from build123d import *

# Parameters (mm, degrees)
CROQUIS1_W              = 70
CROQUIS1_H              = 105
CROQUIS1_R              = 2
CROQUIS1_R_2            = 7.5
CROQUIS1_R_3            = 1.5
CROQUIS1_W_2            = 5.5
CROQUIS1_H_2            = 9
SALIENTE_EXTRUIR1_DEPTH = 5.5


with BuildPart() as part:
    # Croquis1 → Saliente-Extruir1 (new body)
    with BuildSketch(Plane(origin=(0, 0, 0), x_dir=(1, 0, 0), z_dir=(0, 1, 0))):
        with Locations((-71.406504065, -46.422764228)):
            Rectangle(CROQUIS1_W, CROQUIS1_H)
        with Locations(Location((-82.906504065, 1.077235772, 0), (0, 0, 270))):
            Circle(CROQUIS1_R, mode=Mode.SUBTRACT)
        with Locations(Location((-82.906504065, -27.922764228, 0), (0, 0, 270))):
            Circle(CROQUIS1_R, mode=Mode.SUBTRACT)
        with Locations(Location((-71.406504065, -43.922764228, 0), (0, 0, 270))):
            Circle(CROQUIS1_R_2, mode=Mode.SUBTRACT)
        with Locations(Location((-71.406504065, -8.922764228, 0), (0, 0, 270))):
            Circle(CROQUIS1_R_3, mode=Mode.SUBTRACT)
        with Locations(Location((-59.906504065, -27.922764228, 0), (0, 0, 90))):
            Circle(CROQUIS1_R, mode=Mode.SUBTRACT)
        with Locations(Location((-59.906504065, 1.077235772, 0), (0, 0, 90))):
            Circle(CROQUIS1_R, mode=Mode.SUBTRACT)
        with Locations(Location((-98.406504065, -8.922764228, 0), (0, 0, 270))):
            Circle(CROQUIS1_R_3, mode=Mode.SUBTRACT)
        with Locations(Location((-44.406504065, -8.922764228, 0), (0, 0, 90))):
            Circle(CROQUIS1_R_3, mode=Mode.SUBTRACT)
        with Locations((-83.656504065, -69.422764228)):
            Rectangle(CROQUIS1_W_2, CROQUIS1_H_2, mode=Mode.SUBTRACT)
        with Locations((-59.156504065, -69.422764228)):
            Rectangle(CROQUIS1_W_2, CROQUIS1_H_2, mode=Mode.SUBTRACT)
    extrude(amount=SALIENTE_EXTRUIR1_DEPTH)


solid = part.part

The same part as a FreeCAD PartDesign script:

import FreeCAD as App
import Part
import Sketcher
from FreeCAD import Vector
Q = App.Units.Quantity


def add_polygon(sketch, points):
    """Adds a closed chain of lines whose ends are joined by coincident constraints."""
    first, n = sketch.GeometryCount, len(points)
    for a, b in zip(points, points[1:] + points[:1]):
        sketch.addGeometry(Part.LineSegment(App.Vector(*a, 0), App.Vector(*b, 0)), False)
    for i in range(n):
        sketch.addConstraint(Sketcher.Constraint("Coincident", first + i, 2, first + (i + 1) % n, 1))

doc = App.newDocument("Part")
body = doc.addObject("PartDesign::Body", "Body")

# Sketch on XZ plane
sketch1 = doc.addObject("Sketcher::SketchObject", "Sketch")
body.addObject(sketch1)
sketch1.AttachmentSupport = (doc.XZ_Plane, [""])
sketch1.MapMode = "FlatFace"
add_polygon(sketch1, [(-106.4, -6.1), (-106.4, 98.9), (-36.4, 98.9), (-36.4, -6.1)])  # lines 0-3
add_polygon(sketch1, [(-80.9, 73.9), (-86.4, 73.9), (-86.4, 64.9), (-80.9, 64.9)])  # lines 4-7
add_polygon(sketch1, [(-56.4, 73.9), (-61.9, 73.9), (-61.9, 64.9), (-56.4, 64.9)])  # lines 8-11
sketch1.addGeometry(Part.Circle(Vector(-71.4, 43.9, 0), Vector(0, 0, 1), 7.5), False)  # 12
sketch1.addGeometry(Part.Circle(Vector(-82.9, 27.9, 0), Vector(0, 0, 1), 2), False)  # 13
sketch1.addGeometry(Part.Circle(Vector(-98.4, 8.9, 0), Vector(0, 0, 1), 1.5), False)  # 14
sketch1.addGeometry(Part.Circle(Vector(-82.9, -1.1, 0), Vector(0, 0, 1), 2), False)  # 15
sketch1.addGeometry(Part.Circle(Vector(-59.9, 27.9, 0), Vector(0, 0, 1), 2), False)  # 16
sketch1.addGeometry(Part.Circle(Vector(-71.4, 8.9, 0), Vector(0, 0, 1), 1.5), False)  # 17
sketch1.addGeometry(Part.Circle(Vector(-59.9, -1.1, 0), Vector(0, 0, 1), 2), False)  # 18
sketch1.addGeometry(Part.Circle(Vector(-44.4, 8.9, 0), Vector(0, 0, 1), 1.5), False)  # 19
sketch1.addConstraint(Sketcher.Constraint("Vertical", 0))
sketch1.addConstraint(Sketcher.Constraint("Horizontal", 1))
sketch1.addConstraint(Sketcher.Constraint("Vertical", 2))
sketch1.addConstraint(Sketcher.Constraint("Horizontal", 3))
sketch1.addConstraint(Sketcher.Constraint("Horizontal", 4))
sketch1.addConstraint(Sketcher.Constraint("Vertical", 5))
sketch1.addConstraint(Sketcher.Constraint("Horizontal", 6))
sketch1.addConstraint(Sketcher.Constraint("Vertical", 7))
sketch1.addConstraint(Sketcher.Constraint("Horizontal", 8))
sketch1.addConstraint(Sketcher.Constraint("Vertical", 9))
sketch1.addConstraint(Sketcher.Constraint("Horizontal", 10))
sketch1.addConstraint(Sketcher.Constraint("Vertical", 11))
sketch1.addConstraint(Sketcher.Constraint("Equal", 13, 15))
sketch1.addConstraint(Sketcher.Constraint("Equal", 15, 16))
sketch1.addConstraint(Sketcher.Constraint("Equal", 14, 17))
sketch1.addConstraint(Sketcher.Constraint("Equal", 16, 18))
sketch1.addConstraint(Sketcher.Constraint("Equal", 17, 19))
sketch1.addConstraint(Sketcher.Constraint("Horizontal", 13, 3, 16, 3))
sketch1.addConstraint(Sketcher.Constraint("Horizontal", 14, 3, 17, 3))
sketch1.addConstraint(Sketcher.Constraint("Horizontal", 15, 3, 18, 3))
sketch1.addConstraint(Sketcher.Constraint("Horizontal", 17, 3, 19, 3))
sketch1.addConstraint(Sketcher.Constraint("Horizontal", 7, 2, 8, 2))
sketch1.addConstraint(Sketcher.Constraint("Horizontal", 6, 2, 9, 2))
sketch1.addConstraint(Sketcher.Constraint("Vertical", 13, 3, 15, 3))
sketch1.addConstraint(Sketcher.Constraint("Vertical", 12, 3, 17, 3))
sketch1.addConstraint(Sketcher.Constraint("Vertical", 16, 3, 18, 3))
sketch1.addConstraint(Sketcher.Constraint("Equal", 6, 8))
sketch1.addConstraint(Sketcher.Constraint("Diameter", 12, Q("15 mm")))
sketch1.addConstraint(Sketcher.Constraint("Diameter", 13, Q("4 mm")))
sketch1.addConstraint(Sketcher.Constraint("Diameter", 14, Q("3 mm")))
sketch1.addConstraint(Sketcher.Constraint("DistanceX", 1, 1, 1, 2, Q("70 mm")))
sketch1.addConstraint(Sketcher.Constraint("DistanceY", 0, 1, 0, 2, Q("105 mm")))
sketch1.addConstraint(Sketcher.Constraint("DistanceY", 5, 2, 5, 1, Q("9 mm")))
sketch1.addConstraint(Sketcher.Constraint("DistanceX", 4, 2, 4, 1, Q("5.5 mm")))
sketch1.addConstraint(Sketcher.Constraint("DistanceY", 13, 3, 12, 3, Q("16 mm")))
sketch1.addConstraint(Sketcher.Constraint("DistanceY", 14, 3, 13, 3, Q("19 mm")))
sketch1.addConstraint(Sketcher.Constraint("DistanceX", 14, 3, 12, 3, Q("27 mm")))
sketch1.addConstraint(Sketcher.Constraint("DistanceY", 15, 3, 14, 3, Q("10 mm")))
sketch1.addConstraint(Sketcher.Constraint("DistanceX", 13, 3, 16, 3, Q("23 mm")))
sketch1.addConstraint(Sketcher.Constraint("DistanceX", 17, 3, 19, 3, Q("27 mm")))
sketch1.addConstraint(Sketcher.Constraint("DistanceX", 0, 2, 12, 3, Q("35 mm")))
sketch1.addConstraint(Sketcher.Constraint("DistanceY", 12, 3, 0, 2, Q("55 mm")))
sketch1.addConstraint(Sketcher.Constraint("DistanceX", 0, 2, 4, 2, Q("20 mm")))
sketch1.addConstraint(Sketcher.Constraint("DistanceY", 4, 2, 0, 2, Q("25 mm")))
sketch1.addConstraint(Sketcher.Constraint("DistanceX", 13, 3, 6, 2, Q("2 mm")))
sketch1.addConstraint(Sketcher.Constraint("DistanceX", 7, 2, 8, 2, Q("19 mm")))
sketch1.addConstraint(Sketcher.Constraint("DistanceX", 12, 3, -1, 1, Q("71.406504 mm")))
sketch1.addConstraint(Sketcher.Constraint("DistanceY", -1, 1, 12, 3, Q("43.922764 mm")))
pad1 = doc.addObject("PartDesign::Pad", "Pad")
body.addObject(pad1)
pad1.Profile = sketch1
pad1.Length = 5.5
pad1.Reversed = True

doc.recompute()
